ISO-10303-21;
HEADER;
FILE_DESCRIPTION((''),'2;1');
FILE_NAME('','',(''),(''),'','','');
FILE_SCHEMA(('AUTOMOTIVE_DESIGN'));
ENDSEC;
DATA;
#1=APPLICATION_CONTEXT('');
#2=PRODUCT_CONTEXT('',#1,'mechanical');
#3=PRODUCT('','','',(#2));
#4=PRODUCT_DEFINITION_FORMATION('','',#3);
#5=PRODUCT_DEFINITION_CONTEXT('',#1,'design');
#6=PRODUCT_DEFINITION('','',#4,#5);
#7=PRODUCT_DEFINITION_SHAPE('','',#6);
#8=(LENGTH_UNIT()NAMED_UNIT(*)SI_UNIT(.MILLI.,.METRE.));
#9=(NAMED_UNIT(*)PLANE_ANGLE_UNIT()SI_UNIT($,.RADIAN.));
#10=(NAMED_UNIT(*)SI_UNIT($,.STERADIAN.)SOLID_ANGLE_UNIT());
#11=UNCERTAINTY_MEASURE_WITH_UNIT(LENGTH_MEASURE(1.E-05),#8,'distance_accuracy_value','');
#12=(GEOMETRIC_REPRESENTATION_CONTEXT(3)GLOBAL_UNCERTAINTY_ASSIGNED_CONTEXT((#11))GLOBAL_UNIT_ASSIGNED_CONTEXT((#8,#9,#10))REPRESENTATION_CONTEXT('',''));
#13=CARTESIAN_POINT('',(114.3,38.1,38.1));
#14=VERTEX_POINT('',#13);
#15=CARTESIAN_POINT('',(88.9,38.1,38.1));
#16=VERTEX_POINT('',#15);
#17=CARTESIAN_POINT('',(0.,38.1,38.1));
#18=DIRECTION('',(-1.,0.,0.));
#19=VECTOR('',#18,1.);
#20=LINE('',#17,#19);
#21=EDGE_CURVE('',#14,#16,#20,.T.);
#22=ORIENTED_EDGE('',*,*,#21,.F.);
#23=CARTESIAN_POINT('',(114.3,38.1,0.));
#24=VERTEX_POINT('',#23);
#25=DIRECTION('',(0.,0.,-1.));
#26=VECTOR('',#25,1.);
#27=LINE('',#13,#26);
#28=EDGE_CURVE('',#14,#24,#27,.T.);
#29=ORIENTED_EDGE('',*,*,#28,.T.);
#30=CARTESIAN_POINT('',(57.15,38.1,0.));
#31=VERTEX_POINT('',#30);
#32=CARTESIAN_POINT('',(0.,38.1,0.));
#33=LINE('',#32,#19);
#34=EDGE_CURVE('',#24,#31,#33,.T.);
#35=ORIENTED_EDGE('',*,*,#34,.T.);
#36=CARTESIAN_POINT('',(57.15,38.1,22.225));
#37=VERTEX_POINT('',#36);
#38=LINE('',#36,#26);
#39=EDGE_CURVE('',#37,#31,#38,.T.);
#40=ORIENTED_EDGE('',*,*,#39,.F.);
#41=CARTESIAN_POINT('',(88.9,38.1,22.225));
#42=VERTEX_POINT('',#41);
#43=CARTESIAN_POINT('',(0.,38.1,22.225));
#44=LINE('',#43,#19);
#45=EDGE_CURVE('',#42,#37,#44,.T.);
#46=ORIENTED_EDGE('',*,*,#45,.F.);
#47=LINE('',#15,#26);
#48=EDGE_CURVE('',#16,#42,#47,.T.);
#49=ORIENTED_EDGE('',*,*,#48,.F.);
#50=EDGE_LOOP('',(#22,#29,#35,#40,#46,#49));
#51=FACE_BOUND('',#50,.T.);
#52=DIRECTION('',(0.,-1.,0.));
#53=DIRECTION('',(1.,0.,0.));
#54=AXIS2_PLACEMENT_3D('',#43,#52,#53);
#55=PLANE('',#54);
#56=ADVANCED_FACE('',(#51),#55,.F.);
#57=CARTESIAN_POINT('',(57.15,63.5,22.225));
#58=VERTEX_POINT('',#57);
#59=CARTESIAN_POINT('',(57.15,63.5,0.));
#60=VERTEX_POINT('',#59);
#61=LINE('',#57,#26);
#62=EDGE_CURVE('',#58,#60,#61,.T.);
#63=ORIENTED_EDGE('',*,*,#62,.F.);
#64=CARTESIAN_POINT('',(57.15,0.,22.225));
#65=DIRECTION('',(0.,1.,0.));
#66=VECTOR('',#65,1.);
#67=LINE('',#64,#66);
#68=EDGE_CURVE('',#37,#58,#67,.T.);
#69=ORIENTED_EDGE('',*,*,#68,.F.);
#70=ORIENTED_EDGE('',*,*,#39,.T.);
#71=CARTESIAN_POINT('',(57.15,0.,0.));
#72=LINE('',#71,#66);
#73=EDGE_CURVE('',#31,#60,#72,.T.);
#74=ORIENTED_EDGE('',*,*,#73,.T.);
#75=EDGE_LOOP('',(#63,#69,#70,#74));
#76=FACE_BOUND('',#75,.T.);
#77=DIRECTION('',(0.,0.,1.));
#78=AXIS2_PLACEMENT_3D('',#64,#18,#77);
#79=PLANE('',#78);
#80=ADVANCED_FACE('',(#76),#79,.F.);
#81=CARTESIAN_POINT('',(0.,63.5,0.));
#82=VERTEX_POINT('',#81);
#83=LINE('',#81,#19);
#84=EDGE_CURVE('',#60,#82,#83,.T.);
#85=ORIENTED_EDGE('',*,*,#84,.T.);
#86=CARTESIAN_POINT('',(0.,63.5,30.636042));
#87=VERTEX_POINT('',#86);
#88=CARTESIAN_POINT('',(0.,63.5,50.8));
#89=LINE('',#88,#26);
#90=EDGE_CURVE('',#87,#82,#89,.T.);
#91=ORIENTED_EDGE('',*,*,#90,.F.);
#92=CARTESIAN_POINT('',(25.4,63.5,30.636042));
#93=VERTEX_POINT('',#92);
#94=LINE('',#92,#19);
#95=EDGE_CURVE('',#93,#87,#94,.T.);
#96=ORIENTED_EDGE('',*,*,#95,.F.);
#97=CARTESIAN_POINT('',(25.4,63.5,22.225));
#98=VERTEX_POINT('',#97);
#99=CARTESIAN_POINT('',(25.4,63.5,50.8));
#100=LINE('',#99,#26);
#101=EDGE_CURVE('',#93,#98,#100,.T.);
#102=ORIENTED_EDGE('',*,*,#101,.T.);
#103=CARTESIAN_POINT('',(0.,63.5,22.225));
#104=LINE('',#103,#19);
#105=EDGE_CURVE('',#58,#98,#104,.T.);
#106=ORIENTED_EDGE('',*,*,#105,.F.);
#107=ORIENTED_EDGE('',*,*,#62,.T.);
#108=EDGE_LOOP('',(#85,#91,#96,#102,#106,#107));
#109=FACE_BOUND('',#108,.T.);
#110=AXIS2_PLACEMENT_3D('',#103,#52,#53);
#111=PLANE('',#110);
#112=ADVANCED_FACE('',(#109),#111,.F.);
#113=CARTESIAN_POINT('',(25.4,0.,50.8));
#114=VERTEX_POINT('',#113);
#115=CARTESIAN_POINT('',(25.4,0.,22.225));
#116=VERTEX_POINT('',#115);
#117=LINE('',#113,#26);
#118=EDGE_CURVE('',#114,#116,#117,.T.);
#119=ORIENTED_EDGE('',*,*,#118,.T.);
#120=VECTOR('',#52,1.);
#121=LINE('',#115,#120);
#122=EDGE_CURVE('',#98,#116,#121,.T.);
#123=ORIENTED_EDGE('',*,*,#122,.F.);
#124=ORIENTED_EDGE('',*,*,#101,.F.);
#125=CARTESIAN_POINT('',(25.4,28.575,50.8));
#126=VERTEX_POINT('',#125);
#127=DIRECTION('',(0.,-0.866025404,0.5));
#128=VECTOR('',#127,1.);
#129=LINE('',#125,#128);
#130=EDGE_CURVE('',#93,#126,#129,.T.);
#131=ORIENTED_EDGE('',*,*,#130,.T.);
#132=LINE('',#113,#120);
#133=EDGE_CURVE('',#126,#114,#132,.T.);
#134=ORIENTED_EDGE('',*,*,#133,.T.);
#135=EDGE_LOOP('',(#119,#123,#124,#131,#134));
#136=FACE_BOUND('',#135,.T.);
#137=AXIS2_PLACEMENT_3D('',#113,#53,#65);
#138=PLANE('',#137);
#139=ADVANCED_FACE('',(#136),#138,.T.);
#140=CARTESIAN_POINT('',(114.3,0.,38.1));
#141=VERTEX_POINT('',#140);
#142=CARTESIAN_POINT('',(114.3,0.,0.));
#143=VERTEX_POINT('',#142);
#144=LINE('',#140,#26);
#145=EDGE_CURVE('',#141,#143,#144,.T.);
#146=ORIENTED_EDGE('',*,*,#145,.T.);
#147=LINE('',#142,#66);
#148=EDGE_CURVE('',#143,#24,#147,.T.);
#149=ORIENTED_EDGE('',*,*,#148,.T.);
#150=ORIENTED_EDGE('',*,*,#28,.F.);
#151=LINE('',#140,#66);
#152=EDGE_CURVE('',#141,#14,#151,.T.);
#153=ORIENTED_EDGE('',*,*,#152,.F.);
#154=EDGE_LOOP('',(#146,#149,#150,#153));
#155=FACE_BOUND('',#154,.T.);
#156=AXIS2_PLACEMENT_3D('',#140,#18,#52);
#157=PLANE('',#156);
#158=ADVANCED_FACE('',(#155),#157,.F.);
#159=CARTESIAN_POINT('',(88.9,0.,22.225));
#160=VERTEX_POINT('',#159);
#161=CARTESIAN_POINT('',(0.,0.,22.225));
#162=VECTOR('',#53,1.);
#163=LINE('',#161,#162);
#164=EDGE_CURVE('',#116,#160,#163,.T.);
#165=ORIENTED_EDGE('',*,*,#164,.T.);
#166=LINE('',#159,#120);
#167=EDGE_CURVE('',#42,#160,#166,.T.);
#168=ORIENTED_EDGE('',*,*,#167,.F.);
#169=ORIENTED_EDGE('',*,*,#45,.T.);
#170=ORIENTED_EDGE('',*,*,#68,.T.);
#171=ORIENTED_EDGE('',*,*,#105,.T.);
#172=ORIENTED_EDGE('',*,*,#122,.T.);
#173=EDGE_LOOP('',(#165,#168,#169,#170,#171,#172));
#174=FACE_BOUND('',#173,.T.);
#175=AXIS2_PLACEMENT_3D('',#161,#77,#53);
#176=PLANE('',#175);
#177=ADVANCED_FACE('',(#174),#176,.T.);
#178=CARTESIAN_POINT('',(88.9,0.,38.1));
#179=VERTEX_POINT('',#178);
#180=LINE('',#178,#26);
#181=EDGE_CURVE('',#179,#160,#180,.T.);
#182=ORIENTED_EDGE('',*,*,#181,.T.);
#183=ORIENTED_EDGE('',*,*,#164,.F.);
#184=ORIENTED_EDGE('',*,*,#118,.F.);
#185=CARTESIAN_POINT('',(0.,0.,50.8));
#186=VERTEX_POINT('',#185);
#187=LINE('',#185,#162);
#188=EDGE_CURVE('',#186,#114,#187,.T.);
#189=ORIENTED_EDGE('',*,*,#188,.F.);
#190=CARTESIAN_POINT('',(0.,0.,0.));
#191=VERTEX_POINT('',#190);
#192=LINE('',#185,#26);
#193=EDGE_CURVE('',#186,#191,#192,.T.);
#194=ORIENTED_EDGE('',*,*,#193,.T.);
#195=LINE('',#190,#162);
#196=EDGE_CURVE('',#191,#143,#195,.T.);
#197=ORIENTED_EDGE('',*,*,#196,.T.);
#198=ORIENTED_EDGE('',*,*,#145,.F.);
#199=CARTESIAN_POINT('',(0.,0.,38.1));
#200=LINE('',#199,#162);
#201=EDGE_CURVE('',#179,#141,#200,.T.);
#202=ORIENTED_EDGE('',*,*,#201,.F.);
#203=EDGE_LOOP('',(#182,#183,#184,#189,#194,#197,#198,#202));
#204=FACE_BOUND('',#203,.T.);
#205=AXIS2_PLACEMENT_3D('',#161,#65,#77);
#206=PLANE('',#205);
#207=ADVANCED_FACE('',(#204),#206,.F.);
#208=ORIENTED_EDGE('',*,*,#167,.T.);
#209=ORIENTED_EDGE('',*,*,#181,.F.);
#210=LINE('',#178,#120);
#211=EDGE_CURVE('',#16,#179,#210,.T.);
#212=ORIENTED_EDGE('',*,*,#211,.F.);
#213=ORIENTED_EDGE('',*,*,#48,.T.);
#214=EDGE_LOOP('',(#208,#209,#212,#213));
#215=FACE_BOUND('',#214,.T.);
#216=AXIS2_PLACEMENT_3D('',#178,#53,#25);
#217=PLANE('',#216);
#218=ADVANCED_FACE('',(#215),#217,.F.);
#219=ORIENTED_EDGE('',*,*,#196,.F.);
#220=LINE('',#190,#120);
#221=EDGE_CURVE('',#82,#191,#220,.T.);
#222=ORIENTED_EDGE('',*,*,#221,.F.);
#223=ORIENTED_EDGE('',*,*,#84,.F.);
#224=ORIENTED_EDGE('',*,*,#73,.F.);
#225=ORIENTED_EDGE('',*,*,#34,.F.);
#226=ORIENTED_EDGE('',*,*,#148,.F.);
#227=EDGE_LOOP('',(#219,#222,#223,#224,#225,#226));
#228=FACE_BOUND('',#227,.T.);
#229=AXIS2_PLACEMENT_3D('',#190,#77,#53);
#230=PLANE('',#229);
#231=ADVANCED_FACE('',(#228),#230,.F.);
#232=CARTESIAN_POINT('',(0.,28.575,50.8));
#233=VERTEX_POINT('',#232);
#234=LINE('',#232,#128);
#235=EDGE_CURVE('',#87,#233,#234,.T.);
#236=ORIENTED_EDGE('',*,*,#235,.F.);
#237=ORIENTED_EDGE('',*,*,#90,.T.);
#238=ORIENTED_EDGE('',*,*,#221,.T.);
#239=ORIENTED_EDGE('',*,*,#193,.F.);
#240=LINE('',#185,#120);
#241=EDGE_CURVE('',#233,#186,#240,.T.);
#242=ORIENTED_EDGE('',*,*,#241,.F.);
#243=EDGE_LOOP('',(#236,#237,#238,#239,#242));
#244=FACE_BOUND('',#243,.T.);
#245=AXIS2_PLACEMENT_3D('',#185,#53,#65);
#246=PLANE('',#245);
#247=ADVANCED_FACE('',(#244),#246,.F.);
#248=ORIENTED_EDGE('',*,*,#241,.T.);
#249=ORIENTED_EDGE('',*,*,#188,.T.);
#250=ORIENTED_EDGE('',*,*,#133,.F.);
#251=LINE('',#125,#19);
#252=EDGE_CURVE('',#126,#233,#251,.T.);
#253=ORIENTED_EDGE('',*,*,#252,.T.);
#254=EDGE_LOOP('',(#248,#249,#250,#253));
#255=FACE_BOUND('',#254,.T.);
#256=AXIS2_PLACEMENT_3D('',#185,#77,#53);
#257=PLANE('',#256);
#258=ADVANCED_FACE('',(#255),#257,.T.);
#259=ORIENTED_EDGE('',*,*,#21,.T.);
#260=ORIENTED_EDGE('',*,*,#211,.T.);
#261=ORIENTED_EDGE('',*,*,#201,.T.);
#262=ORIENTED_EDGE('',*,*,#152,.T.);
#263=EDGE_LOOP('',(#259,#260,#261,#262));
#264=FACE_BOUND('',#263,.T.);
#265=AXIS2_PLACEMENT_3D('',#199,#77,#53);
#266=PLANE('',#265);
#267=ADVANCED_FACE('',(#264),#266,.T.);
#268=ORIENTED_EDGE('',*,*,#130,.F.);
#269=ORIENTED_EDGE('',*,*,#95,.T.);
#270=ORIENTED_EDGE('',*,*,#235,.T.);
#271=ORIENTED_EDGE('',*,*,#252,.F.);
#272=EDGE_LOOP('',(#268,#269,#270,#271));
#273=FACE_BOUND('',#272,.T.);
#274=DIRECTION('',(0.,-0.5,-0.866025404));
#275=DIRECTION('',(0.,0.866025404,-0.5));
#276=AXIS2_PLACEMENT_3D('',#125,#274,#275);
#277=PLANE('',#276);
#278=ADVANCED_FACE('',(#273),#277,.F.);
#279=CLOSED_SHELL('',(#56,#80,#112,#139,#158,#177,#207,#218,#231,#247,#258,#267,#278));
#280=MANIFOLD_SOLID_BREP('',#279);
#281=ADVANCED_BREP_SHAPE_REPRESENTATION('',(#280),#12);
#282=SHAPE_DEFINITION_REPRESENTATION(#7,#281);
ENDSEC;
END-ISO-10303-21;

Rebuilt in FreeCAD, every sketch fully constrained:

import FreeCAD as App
import Part
import Sketcher
Q = App.Units.Quantity


def add_polygon(sketch, points):
    """Adds a closed chain of lines whose ends are joined by coincident constraints."""
    first, n = sketch.GeometryCount, len(points)
    for a, b in zip(points, points[1:] + points[:1]):
        sketch.addGeometry(Part.LineSegment(App.Vector(*a, 0), App.Vector(*b, 0)), False)
    for i in range(n):
        sketch.addConstraint(Sketcher.Constraint("Coincident", first + i, 2, first + (i + 1) % n, 1))

doc = App.newDocument("Part")
body = doc.addObject("PartDesign::Body", "Body")

sketch1 = body.newObject("Sketcher::SketchObject", "Sketch")
sketch1.AttachmentSupport = (doc.getObject("XY_Plane"), [""])
sketch1.MapMode = "FlatFace"
add_polygon(sketch1, [(25, 0), (89, 0), (89, 38), (57, 38), (57, 64), (25, 64)])
sketch1.addConstraint([
    Sketcher.Constraint("Horizontal", 0),
    Sketcher.Constraint("Vertical", 1),
    Sketcher.Constraint("Horizontal", 2),
    Sketcher.Constraint("Vertical", 3),
    Sketcher.Constraint("Horizontal", 4),
    Sketcher.Constraint("Vertical", 5),
    Sketcher.Constraint("PointOnObject", 0, 2, -1),
    Sketcher.Constraint("Equal", 2, 4),
    Sketcher.Constraint("Equal", 0, 5),
    Sketcher.Constraint("DistanceY", 3, 1, 3, 2, Q("1 in")),
    Sketcher.Constraint("DistanceX", 0, 1, 0, 2, Q("2.5 in")),
    Sketcher.Constraint("DistanceX", -1, 1, 4, 2, Q("1 in")),
])
pad1 = body.newObject("PartDesign::Pad", "Pad")
pad1.Profile = sketch1
pad1.Length = Q("0.875 in")

sketch2 = body.newObject("Sketcher::SketchObject", "Sketch001")
sketch2.AttachmentSupport = (doc.getObject("XY_Plane"), [""])
sketch2.MapMode = "FlatFace"
add_polygon(sketch2, [(89, 38), (89, 0), (114, 0), (114, 38)])
sketch2.addConstraint([
    Sketcher.Constraint("Vertical", 0),
    Sketcher.Constraint("Horizontal", 1),
    Sketcher.Constraint("Vertical", 2),
    Sketcher.Constraint("Horizontal", 3),
    Sketcher.Constraint("PointOnObject", 0, 2, -1),
    Sketcher.Constraint("DistanceX", 1, 1, 1, 2, Q("1 in")),
    Sketcher.Constraint("DistanceY", 0, 2, 0, 1, Q("1.5 in")),
    Sketcher.Constraint("DistanceX", -1, 1, 0, 2, Q("3.5 in")),
])
pad2 = body.newObject("PartDesign::Pad", "Pad001")
pad2.Profile = sketch2
pad2.Length = Q("1.5 in")

sketch3 = body.newObject("Sketcher::SketchObject", "Sketch002")
sketch3.AttachmentSupport = (doc.getObject("XY_Plane"), [""])
sketch3.MapMode = "FlatFace"
add_polygon(sketch3, [(0, 0), (25, 0), (25, 64), (0, 64)])
sketch3.addConstraint([
    Sketcher.Constraint("Horizontal", 0),
    Sketcher.Constraint("Vertical", 1),
    Sketcher.Constraint("Horizontal", 2),
    Sketcher.Constraint("Vertical", 3),
    Sketcher.Constraint("Coincident", 3, 2, -1, 1),
    Sketcher.Constraint("DistanceX", 0, 1, 0, 2, Q("1 in")),
    Sketcher.Constraint("DistanceY", 1, 1, 1, 2, Q("2.5 in")),
])
pad3 = body.newObject("PartDesign::Pad", "Pad002")
pad3.Profile = sketch3
pad3.Length = Q("2 in")

sketch4 = body.newObject("Sketcher::SketchObject", "Sketch003")
sketch4.AttachmentSupport = (doc.getObject("YZ_Plane"), [""])
sketch4.MapMode = "FlatFace"
add_polygon(sketch4, [(64, 31), (29, 51), (64, 51)])
sketch4.addConstraint([
    Sketcher.Constraint("Horizontal", 1),
    Sketcher.Constraint("Vertical", 2),
    Sketcher.Constraint("DistanceY", -1, 1, 0, 2, Q("2 in")),
    Sketcher.Constraint("Angle", 0, Q("150 deg")),
    Sketcher.Constraint("DistanceX", -1, 1, 1, 2, Q("2.5 in")),
    Sketcher.Constraint("DistanceX", 1, 1, 1, 2, Q("1.375 in")),
])
pocket1 = body.newObject("PartDesign::Pocket", "Pocket")
pocket1.Profile = sketch4
pocket1.Length = Q("1 in")
pocket1.Reversed = True

doc.recompute()
